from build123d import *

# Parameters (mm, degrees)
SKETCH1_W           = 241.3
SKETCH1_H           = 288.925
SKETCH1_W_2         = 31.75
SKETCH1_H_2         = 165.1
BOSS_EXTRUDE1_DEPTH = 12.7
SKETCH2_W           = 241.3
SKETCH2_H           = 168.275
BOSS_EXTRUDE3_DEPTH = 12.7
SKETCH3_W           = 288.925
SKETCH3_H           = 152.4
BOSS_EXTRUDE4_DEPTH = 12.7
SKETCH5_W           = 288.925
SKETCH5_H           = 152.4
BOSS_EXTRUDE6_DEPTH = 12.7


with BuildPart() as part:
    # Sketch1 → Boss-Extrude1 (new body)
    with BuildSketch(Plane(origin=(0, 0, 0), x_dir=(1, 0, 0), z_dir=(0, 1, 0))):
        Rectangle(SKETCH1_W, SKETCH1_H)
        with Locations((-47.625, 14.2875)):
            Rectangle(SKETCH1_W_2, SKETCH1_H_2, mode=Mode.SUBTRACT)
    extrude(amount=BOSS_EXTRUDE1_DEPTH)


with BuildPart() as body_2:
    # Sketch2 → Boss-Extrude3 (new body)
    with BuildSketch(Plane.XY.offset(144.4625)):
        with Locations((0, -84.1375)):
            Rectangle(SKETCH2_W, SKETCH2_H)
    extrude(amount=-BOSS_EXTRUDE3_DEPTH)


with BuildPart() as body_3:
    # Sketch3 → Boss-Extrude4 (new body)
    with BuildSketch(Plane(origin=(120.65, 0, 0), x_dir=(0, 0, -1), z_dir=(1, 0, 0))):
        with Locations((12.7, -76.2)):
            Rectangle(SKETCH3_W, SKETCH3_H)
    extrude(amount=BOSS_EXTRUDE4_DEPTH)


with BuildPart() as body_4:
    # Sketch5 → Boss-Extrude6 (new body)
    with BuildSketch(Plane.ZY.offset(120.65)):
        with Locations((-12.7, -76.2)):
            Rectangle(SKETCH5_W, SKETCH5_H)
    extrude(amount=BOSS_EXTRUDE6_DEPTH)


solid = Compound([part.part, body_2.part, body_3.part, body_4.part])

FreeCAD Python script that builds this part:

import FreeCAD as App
import Part
import Sketcher
from FreeCAD import Vector
Q = App.Units.Quantity

doc = App.newDocument("Part")
body = doc.addObject("PartDesign::Body", "Body")

# Sketch on XZ plane
sketch1 = doc.addObject("Sketcher::SketchObject", "Sketch")
body.addObject(sketch1)
sketch1.AttachmentSupport = (doc.XZ_Plane, [""])
sketch1.MapMode = "FlatFace"
sketch1.addGeometry(Part.LineSegment(Vector(-121, -144, 0), Vector(-121, 144, 0)), False)
sketch1.addGeometry(Part.LineSegment(Vector(-121, 144, 0), Vector(121, 144, 0)), False)
sketch1.addGeometry(Part.LineSegment(Vector(121, 144, 0), Vector(121, -144, 0)), False)
sketch1.addGeometry(Part.LineSegment(Vector(121, -144, 0), Vector(-121, -144, 0)), False)
sketch1.addGeometry(Part.LineSegment(Vector(-32, 68, 0), Vector(-64, 68, 0)), False)
sketch1.addGeometry(Part.LineSegment(Vector(-64, 68, 0), Vector(-64, -97, 0)), False)
sketch1.addGeometry(Part.LineSegment(Vector(-64, -97, 0), Vector(-32, -97, 0)), False)
sketch1.addGeometry(Part.LineSegment(Vector(-32, -97, 0), Vector(-32, 68, 0)), False)
sketch1.addConstraint(Sketcher.Constraint("Coincident", 0, 2, 1, 1))
sketch1.addConstraint(Sketcher.Constraint("Coincident", 1, 2, 2, 1))
sketch1.addConstraint(Sketcher.Constraint("Coincident", 2, 2, 3, 1))
sketch1.addConstraint(Sketcher.Constraint("Coincident", 3, 2, 0, 1))
sketch1.addConstraint(Sketcher.Constraint("Coincident", 4, 2, 5, 1))
sketch1.addConstraint(Sketcher.Constraint("Coincident", 5, 2, 6, 1))
sketch1.addConstraint(Sketcher.Constraint("Coincident", 6, 2, 7, 1))
sketch1.addConstraint(Sketcher.Constraint("Coincident", 7, 2, 4, 1))
sketch1.addConstraint(Sketcher.Constraint("Vertical", 0))
sketch1.addConstraint(Sketcher.Constraint("Horizontal", 1))
sketch1.addConstraint(Sketcher.Constraint("Vertical", 2))
sketch1.addConstraint(Sketcher.Constraint("Horizontal", 3))
sketch1.addConstraint(Sketcher.Constraint("Horizontal", 4))
sketch1.addConstraint(Sketcher.Constraint("Vertical", 5))
sketch1.addConstraint(Sketcher.Constraint("Horizontal", 6))
sketch1.addConstraint(Sketcher.Constraint("Vertical", 7))
sketch1.addConstraint(Sketcher.Constraint("Symmetric", 0, 2, 2, 2, -1, 1))
sketch1.addConstraint(Sketcher.Constraint("DistanceX", 1, 1, 1, 2, Q("9.5 in")))
sketch1.addConstraint(Sketcher.Constraint("DistanceY", 5, 2, 5, 1, Q("6.5 in")))
sketch1.addConstraint(Sketcher.Constraint("DistanceY", 4, 2, 0, 2, Q("3 in")))
sketch1.addConstraint(Sketcher.Constraint("DistanceX", 6, 2, 2, 2, Q("6 in")))
sketch1.addConstraint(Sketcher.Constraint("DistanceX", 4, 2, 4, 1, Q("1.25 in")))
sketch1.addConstraint(Sketcher.Constraint("DistanceY", 0, 1, 0, 2, Q("11.375 in")))
pad1 = doc.addObject("PartDesign::Pad", "Pad")
body.addObject(pad1)
pad1.Profile = sketch1
pad1.Length = Q("0.5 in")
pad1.Reversed = True
body2 = doc.addObject("PartDesign::Body", "Body001")

# Sketch on XY plane
sketch2 = doc.addObject("Sketcher::SketchObject", "Sketch001")
body2.addObject(sketch2)
sketch2.AttachmentSupport = (doc.getObject("XY_Plane001"), [""])
sketch2.MapMode = "FlatFace"
sketch2.AttachmentOffset = App.Placement(Vector(0, 0, 5.6875 * 25.4), App.Rotation())
sketch2.addGeometry(Part.LineSegment(Vector(-121, 0, 0), Vector(-121, -168, 0)), False)
sketch2.addGeometry(Part.LineSegment(Vector(-121, -168, 0), Vector(121, -168, 0)), False)
sketch2.addGeometry(Part.LineSegment(Vector(121, -168, 0), Vector(121, 0, 0)), False)
sketch2.addGeometry(Part.LineSegment(Vector(121, 0, 0), Vector(-121, 0, 0)), False)
sketch2.addConstraint(Sketcher.Constraint("Coincident", 0, 2, 1, 1))
sketch2.addConstraint(Sketcher.Constraint("Coincident", 1, 2, 2, 1))
sketch2.addConstraint(Sketcher.Constraint("Coincident", 2, 2, 3, 1))
sketch2.addConstraint(Sketcher.Constraint("Coincident", 3, 2, 0, 1))
sketch2.addConstraint(Sketcher.Constraint("Vertical", 0))
sketch2.addConstraint(Sketcher.Constraint("Horizontal", 1))
sketch2.addConstraint(Sketcher.Constraint("Vertical", 2))
sketch2.addConstraint(Sketcher.Constraint("Horizontal", 3))
sketch2.addConstraint(Sketcher.Constraint("Symmetric", 2, 2, 3, 2, -1, 1))
sketch2.addConstraint(Sketcher.Constraint("DistanceX", 1, 1, 1, 2, Q("9.5 in")))
sketch2.addConstraint(Sketcher.Constraint("DistanceY", 0, 2, 0, 1, Q("6.625 in")))
pad2 = doc.addObject("PartDesign::Pad", "Pad001")
body2.addObject(pad2)
pad2.Profile = sketch2
pad2.Length = Q("0.5 in")
pad2.Reversed = True
body3 = doc.addObject("PartDesign::Body", "Body002")

# Sketch on YZ plane
sketch3 = doc.addObject("Sketcher::SketchObject", "Sketch002")
body3.addObject(sketch3)
sketch3.AttachmentSupport = (doc.getObject("YZ_Plane002"), [""])
sketch3.MapMode = "FlatFace"
sketch3.AttachmentOffset = App.Placement(Vector(0, 0, 4.75 * 25.4), App.Rotation())
sketch3.addGeometry(Part.LineSegment(Vector(0, 132, 0), Vector(-152, 132, 0)), False)
sketch3.addGeometry(Part.LineSegment(Vector(-152, 132, 0), Vector(-152, -157, 0)), False)
sketch3.addGeometry(Part.LineSegment(Vector(-152, -157, 0), Vector(0, -157, 0)), False)
sketch3.addGeometry(Part.LineSegment(Vector(0, -157, 0), Vector(0, 132, 0)), False)
sketch3.addConstraint(Sketcher.Constraint("Coincident", 0, 2, 1, 1))
sketch3.addConstraint(Sketcher.Constraint("Coincident", 1, 2, 2, 1))
sketch3.addConstraint(Sketcher.Constraint("Coincident", 2, 2, 3, 1))
sketch3.addConstraint(Sketcher.Constraint("Coincident", 3, 2, 0, 1))
sketch3.addConstraint(Sketcher.Constraint("Horizontal", 0))
sketch3.addConstraint(Sketcher.Constraint("Vertical", 1))
sketch3.addConstraint(Sketcher.Constraint("Horizontal", 2))
sketch3.addConstraint(Sketcher.Constraint("Vertical", 3))
sketch3.addConstraint(Sketcher.Constraint("PointOnObject", 2, 2, -2))
sketch3.addConstraint(Sketcher.Constraint("DistanceX", 0, 2, 0, 1, Q("6 in")))
sketch3.addConstraint(Sketcher.Constraint("DistanceY", 1, 2, 1, 1, Q("11.375 in")))
sketch3.addConstraint(Sketcher.Constraint("DistanceY", -1, 1, 0, 2, Q("5.1875 in")))
pad3 = doc.addObject("PartDesign::Pad", "Pad002")
body3.addObject(pad3)
pad3.Profile = sketch3
pad3.Length = Q("0.5 in")
body4 = doc.addObject("PartDesign::Body", "Body003")

# Sketch on YZ plane
sketch4 = doc.addObject("Sketcher::SketchObject", "Sketch003")
body4.addObject(sketch4)
sketch4.AttachmentSupport = (doc.getObject("YZ_Plane003"), [""])
sketch4.MapMode = "FlatFace"
sketch4.AttachmentOffset = App.Placement(Vector(0, 0, -4.75 * 25.4), App.Rotation())
sketch4.addGeometry(Part.LineSegment(Vector(0, -157, 0), Vector(-152, -157, 0)), False)
sketch4.addGeometry(Part.LineSegment(Vector(-152, -157, 0), Vector(-152, 132, 0)), False)
sketch4.addGeometry(Part.LineSegment(Vector(-152, 132, 0), Vector(0, 132, 0)), False)
sketch4.addGeometry(Part.LineSegment(Vector(0, 132, 0), Vector(0, -157, 0)), False)
sketch4.addConstraint(Sketcher.Constraint("Coincident", 0, 2, 1, 1))
sketch4.addConstraint(Sketcher.Constraint("Coincident", 1, 2, 2, 1))
sketch4.addConstraint(Sketcher.Constraint("Coincident", 2, 2, 3, 1))
sketch4.addConstraint(Sketcher.Constraint("Coincident", 3, 2, 0, 1))
sketch4.addConstraint(Sketcher.Constraint("Horizontal", 0))
sketch4.addConstraint(Sketcher.Constraint("Vertical", 1))
sketch4.addConstraint(Sketcher.Constraint("Horizontal", 2))
sketch4.addConstraint(Sketcher.Constraint("Vertical", 3))
sketch4.addConstraint(Sketcher.Constraint("PointOnObject", 2, 2, -2))
sketch4.addConstraint(Sketcher.Constraint("DistanceX", 0, 2, 0, 1, Q("6 in")))
sketch4.addConstraint(Sketcher.Constraint("DistanceY", 1, 1, 1, 2, Q("11.375 in")))
sketch4.addConstraint(Sketcher.Constraint("DistanceY", 0, 2, -1, 1, Q("6.1875 in")))
pad4 = doc.addObject("PartDesign::Pad", "Pad003")
body4.addObject(pad4)
pad4.Profile = sketch4
pad4.Length = Q("0.5 in")
pad4.Reversed = True

doc.recompute()
